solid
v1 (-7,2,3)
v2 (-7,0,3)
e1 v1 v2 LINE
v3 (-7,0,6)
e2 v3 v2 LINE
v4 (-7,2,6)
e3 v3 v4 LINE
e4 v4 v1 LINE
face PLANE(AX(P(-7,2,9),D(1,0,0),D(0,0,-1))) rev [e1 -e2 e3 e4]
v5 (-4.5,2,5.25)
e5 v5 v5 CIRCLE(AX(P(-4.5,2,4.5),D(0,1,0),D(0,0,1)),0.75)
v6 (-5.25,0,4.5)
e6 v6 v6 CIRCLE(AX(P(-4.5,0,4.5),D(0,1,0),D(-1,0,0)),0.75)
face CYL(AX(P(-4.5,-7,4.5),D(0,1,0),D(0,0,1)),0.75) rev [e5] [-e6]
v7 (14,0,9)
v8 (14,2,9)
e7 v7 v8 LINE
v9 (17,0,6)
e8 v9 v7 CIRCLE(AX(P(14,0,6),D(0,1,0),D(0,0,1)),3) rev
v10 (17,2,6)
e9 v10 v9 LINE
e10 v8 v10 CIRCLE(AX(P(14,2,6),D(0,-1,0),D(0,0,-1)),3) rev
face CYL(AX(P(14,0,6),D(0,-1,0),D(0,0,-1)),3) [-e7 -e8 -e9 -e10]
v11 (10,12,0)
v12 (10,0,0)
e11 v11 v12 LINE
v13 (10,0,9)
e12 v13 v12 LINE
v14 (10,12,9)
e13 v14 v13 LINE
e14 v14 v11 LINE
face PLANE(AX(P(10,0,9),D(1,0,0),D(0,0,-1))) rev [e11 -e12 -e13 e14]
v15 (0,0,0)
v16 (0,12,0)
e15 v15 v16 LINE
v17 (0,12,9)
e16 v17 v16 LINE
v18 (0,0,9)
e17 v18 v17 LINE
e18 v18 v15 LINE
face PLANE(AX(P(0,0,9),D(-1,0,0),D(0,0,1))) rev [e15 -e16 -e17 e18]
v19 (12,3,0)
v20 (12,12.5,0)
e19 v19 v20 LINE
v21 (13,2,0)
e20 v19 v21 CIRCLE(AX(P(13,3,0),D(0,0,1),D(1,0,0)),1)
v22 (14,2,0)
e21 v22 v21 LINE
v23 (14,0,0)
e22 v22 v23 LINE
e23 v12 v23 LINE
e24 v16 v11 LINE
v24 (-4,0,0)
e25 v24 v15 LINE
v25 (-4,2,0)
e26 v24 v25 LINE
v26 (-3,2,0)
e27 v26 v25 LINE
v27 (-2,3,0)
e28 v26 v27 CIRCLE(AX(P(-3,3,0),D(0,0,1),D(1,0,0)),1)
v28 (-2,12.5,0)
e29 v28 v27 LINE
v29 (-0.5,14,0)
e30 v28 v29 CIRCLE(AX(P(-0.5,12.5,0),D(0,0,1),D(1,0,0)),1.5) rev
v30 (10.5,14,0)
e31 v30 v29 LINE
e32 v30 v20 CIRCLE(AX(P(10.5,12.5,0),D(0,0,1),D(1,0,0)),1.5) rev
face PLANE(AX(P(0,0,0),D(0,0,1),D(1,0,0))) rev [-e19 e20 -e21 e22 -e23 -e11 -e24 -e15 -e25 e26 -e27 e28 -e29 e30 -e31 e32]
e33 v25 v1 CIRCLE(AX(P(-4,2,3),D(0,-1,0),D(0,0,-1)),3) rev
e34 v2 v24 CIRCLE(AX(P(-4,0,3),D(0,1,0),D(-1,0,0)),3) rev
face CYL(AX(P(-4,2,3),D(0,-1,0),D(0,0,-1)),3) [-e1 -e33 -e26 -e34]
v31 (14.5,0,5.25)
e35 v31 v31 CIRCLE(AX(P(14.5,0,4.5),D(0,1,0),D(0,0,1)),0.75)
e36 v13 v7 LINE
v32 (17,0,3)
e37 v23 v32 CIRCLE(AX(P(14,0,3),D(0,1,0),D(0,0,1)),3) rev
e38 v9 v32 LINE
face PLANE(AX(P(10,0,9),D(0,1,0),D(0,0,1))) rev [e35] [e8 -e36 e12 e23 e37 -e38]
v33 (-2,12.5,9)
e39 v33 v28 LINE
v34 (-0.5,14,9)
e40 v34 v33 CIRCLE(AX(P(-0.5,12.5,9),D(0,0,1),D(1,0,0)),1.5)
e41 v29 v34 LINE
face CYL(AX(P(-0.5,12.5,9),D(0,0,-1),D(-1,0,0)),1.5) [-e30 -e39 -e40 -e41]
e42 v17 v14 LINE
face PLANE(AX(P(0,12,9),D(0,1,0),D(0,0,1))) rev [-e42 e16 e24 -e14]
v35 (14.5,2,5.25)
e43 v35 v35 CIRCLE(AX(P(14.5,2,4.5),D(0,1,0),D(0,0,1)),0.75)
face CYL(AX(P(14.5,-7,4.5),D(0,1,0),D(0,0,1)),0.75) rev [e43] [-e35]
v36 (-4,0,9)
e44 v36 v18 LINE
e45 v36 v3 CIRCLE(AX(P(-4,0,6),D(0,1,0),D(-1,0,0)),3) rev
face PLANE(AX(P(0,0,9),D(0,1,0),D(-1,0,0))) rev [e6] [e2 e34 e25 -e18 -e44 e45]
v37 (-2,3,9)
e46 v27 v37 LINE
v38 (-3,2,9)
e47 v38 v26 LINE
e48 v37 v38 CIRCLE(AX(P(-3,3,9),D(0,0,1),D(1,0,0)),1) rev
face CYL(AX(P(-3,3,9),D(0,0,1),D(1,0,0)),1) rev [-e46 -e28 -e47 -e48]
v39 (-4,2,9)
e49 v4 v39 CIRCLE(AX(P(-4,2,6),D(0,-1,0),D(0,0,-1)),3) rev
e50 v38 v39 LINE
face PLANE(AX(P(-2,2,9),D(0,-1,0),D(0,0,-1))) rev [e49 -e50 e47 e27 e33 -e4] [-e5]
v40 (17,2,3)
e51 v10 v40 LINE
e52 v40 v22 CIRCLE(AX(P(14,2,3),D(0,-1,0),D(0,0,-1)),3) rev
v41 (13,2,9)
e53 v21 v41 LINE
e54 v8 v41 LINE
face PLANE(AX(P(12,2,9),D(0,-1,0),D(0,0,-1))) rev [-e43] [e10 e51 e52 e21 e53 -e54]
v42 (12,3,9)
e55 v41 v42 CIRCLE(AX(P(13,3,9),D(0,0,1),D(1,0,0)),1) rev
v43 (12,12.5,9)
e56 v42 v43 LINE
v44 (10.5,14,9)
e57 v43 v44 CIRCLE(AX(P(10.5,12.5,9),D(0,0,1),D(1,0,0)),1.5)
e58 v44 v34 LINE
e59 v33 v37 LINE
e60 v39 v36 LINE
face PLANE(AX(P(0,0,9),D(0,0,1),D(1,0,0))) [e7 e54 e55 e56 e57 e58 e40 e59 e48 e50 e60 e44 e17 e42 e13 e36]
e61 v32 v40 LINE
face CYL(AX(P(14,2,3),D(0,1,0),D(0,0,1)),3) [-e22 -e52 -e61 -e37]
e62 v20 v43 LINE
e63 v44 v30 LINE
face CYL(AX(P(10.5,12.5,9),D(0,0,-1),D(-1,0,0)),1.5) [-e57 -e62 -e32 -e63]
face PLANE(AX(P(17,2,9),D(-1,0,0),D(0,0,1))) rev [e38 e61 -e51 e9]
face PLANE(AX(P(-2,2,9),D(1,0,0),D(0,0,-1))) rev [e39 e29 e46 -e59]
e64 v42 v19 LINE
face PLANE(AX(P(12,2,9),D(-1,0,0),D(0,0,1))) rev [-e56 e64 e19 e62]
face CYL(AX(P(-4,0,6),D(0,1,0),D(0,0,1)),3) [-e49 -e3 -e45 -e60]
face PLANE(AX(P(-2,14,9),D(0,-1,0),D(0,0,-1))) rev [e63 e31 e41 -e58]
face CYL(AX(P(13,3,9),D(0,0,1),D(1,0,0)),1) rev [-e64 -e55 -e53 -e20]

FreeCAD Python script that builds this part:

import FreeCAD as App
import Part
import Sketcher


def edges_at(feature, points):
    """Names of the edges that pass closest to the given points."""
    edges = feature.Shape.Edges
    near = lambda p: min(range(len(edges)), key=lambda i: edges[i].distToShape(Part.Vertex(*p))[0])
    return sorted({f"Edge{near(p) + 1}" for p in points})


def add_polygon(sketch, points):
    """Adds a closed chain of lines whose ends are joined by coincident constraints."""
    first, n = sketch.GeometryCount, len(points)
    for a, b in zip(points, points[1:] + points[:1]):
        sketch.addGeometry(Part.LineSegment(App.Vector(*a, 0), App.Vector(*b, 0)), False)
    for i in range(n):
        sketch.addConstraint(Sketcher.Constraint("Coincident", first + i, 2, first + (i + 1) % n, 1))

doc = App.newDocument("Part")
body = doc.addObject("PartDesign::Body", "Body")

sketch1 = body.newObject("Sketcher::SketchObject", "Sketch")
sketch1.AttachmentSupport = (doc.getObject("XY_Plane"), [""])
sketch1.MapMode = "FlatFace"
add_polygon(sketch1, [(10, 0), (17, 0), (17, 2), (12, 2), (12, 14), (-2, 14), (-2, 2), (-7, 2), (-7, 0), (0, 0), (0, 12), (10, 12)])
sketch1.addConstraint(Sketcher.Constraint("Horizontal", 0))
sketch1.addConstraint(Sketcher.Constraint("Vertical", 1))
sketch1.addConstraint(Sketcher.Constraint("Horizontal", 2))
sketch1.addConstraint(Sketcher.Constraint("Vertical", 3))
sketch1.addConstraint(Sketcher.Constraint("Horizontal", 4))
sketch1.addConstraint(Sketcher.Constraint("Vertical", 5))
sketch1.addConstraint(Sketcher.Constraint("Horizontal", 6))
sketch1.addConstraint(Sketcher.Constraint("Vertical", 7))
sketch1.addConstraint(Sketcher.Constraint("Horizontal", 8))
sketch1.addConstraint(Sketcher.Constraint("Vertical", 9))
sketch1.addConstraint(Sketcher.Constraint("Horizontal", 10))
sketch1.addConstraint(Sketcher.Constraint("Vertical", 11))
sketch1.addConstraint(Sketcher.Constraint("Coincident", 8, 2, -1, 1))
sketch1.addConstraint(Sketcher.Constraint("PointOnObject", 0, 2, -1))
sketch1.addConstraint(Sketcher.Constraint("Horizontal", 2, 2, 5, 2))
sketch1.addConstraint(Sketcher.Constraint("Equal", 2, 6))
sketch1.addConstraint(Sketcher.Constraint("Equal", 0, 8))
sketch1.addConstraint(Sketcher.Constraint("Equal", 5, 9))
sketch1.addConstraint(Sketcher.Constraint("DistanceX", 0, 1, 0, 2, 7.0))
sketch1.addConstraint(Sketcher.Constraint("DistanceX", 2, 2, 2, 1, 5.0))
sketch1.addConstraint(Sketcher.Constraint("DistanceX", 4, 2, 4, 1, 14.0))
sketch1.addConstraint(Sketcher.Constraint("DistanceY", 1, 1, 1, 2, 2.0))
sketch1.addConstraint(Sketcher.Constraint("DistanceY", 3, 1, 3, 2, 12.0))
pad1 = body.newObject("PartDesign::Pad", "Pad")
pad1.Profile = sketch1
pad1.Length = 9
doc.recompute()

fillet = body.newObject("PartDesign::Fillet", "Fillet")
fillet.Base = (pad1, edges_at(pad1, [
    (-7, 1, 0),
    (17, 1, 0),
    (17, 1, 9),
    (-7, 1, 9),
]))
fillet.Radius = 3
doc.recompute()

fillet2 = body.newObject("PartDesign::Fillet", "Fillet001")
fillet2.Base = (fillet, edges_at(fillet, [(-2, 14, 4.5), (12, 14, 4.5)]))
fillet2.Radius = 1.5

sketch2 = body.newObject("Sketcher::SketchObject", "Sketch001")
sketch2.AttachmentSupport = (doc.getObject("XZ_Plane"), [""])
sketch2.MapMode = "FlatFace"
sketch2.AttachmentOffset = App.Placement(App.Vector(0, 0, -2), App.Rotation())
sketch2.addGeometry(Part.Circle(App.Vector(-4.5, 4.5, 0), App.Vector(0, 0, 1), 0.8), False)
sketch2.addGeometry(Part.Circle(App.Vector(14.5, 4.5, 0), App.Vector(0, 0, 1), 0.8), False)
sketch2.addConstraint(Sketcher.Constraint("Equal", 0, 1))
sketch2.addConstraint(Sketcher.Constraint("Horizontal", 0, 3, 1, 3))
sketch2.addConstraint(Sketcher.Constraint("Diameter", 0, 1.5))
sketch2.addConstraint(Sketcher.Constraint("DistanceX", 0, 3, 1, 3, 19.0))
sketch2.addConstraint(Sketcher.Constraint("DistanceX", 0, 3, -1, 1, 4.5))
sketch2.addConstraint(Sketcher.Constraint("DistanceY", -1, 1, 0, 3, 4.5))
pocket1 = body.newObject("PartDesign::Pocket", "Pocket")
pocket1.Profile = sketch2
pocket1.Length = 9
pocket1.Reversed = True
doc.recompute()

fillet3 = body.newObject("PartDesign::Fillet", "Fillet002")
fillet3.Base = (pocket1, edges_at(pocket1, [(-2, 2, 4.5), (12, 2, 4.5)]))
fillet3.Radius = 1

doc.recompute()
